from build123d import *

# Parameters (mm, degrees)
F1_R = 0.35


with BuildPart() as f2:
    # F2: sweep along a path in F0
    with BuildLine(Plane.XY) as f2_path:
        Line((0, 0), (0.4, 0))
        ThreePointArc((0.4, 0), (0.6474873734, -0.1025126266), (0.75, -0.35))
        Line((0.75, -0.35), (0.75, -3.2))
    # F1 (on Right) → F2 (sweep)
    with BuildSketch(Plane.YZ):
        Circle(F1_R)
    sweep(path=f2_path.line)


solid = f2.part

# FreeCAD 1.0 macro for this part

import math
import FreeCAD as App
import Part
import Sketcher
from FreeCAD import Vector
Q = App.Units.Quantity

doc = App.newDocument("Part")
body = doc.addObject("PartDesign::Body", "Body")

# Sketch on YZ plane
sketch1 = body.newObject("Sketcher::SketchObject", "Sketch")
sketch1.AttachmentSupport = (doc.getObject("YZ_Plane"), [""])
sketch1.MapMode = "FlatFace"
sketch1.addGeometry(Part.Circle(Vector(0, 0, 0), Vector(0, 0, 1), 0.35), False)
sketch1.addConstraint([
    Sketcher.Constraint("Coincident", 0, 3, -1, 1),
    Sketcher.Constraint("Diameter", 0, Q("0.7 mm")),
])

# Sketch on XY plane
sketch2 = body.newObject("Sketcher::SketchObject", "Sketch001")
sketch2.AttachmentSupport = (doc.getObject("XY_Plane"), [""])
sketch2.MapMode = "FlatFace"
sketch2.addGeometry([
    Part.LineSegment(Vector(0, 0, 0), Vector(0.4, 0, 0)),
    Part.ArcOfCircle(Part.Circle(Vector(0.4, -0.35, 0), Vector(0, 0, 1), 0.35), math.radians(0), math.radians(90)),
    Part.LineSegment(Vector(0.75, -0.35, 0), Vector(0.75, -3.2, 0)),
], False)
sketch2.addConstraint([
    Sketcher.Constraint("Tangent", 0, 2, 1, 2),
    Sketcher.Constraint("Tangent", 1, 1, 2, 1),
    Sketcher.Constraint("Horizontal", 0),
    Sketcher.Constraint("Vertical", 2),
    Sketcher.Constraint("Coincident", 0, 1, -1, 1),
    Sketcher.Constraint("Radius", 1, Q("0.35 mm")),
    Sketcher.Constraint("DistanceX", 0, 1, 0, 2, Q("0.4 mm")),
    Sketcher.Constraint("DistanceY", 2, 2, 2, 1, Q("2.85 mm")),
])
doc.recompute()

additivepipe = body.newObject("PartDesign::AdditivePipe", "AdditivePipe")
additivepipe.Profile = sketch1
additivepipe.Spine = (sketch2, ["Edge1", "Edge2", "Edge3"])

doc.recompute()
